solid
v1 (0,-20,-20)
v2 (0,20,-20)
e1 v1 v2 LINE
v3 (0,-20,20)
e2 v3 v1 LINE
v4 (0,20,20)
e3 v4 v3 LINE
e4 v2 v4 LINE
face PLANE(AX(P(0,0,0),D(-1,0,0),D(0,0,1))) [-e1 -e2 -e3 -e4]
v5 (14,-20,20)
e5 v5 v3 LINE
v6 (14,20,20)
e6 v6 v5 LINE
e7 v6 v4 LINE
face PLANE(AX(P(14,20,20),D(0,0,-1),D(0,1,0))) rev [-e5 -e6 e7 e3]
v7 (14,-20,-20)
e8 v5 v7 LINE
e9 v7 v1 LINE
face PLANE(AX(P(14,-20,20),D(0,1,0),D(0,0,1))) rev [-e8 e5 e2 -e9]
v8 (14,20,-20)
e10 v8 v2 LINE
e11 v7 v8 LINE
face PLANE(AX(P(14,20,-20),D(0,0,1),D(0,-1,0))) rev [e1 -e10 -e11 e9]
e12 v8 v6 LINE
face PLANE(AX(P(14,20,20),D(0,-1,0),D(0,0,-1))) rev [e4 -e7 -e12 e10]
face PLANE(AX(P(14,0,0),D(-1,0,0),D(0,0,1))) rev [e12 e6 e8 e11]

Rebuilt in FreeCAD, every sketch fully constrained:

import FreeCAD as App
import Part
import Sketcher

doc = App.newDocument("Part")
body = doc.addObject("PartDesign::Body", "Body")

sketch1 = body.newObject("Sketcher::SketchObject", "Sketch")
sketch1.AttachmentSupport = (doc.getObject("YZ_Plane"), [""])
sketch1.MapMode = "FlatFace"
sketch1.addGeometry([
    Part.LineSegment(App.Vector(-20, 20, 0), App.Vector(-20, -20, 0)),
    Part.LineSegment(App.Vector(-20, -20, 0), App.Vector(20, -20, 0)),
    Part.LineSegment(App.Vector(20, -20, 0), App.Vector(20, 20, 0)),
    Part.LineSegment(App.Vector(20, 20, 0), App.Vector(-20, 20, 0)),
], False)
sketch1.addConstraint([
    Sketcher.Constraint("Coincident", 0, 2, 1, 1),
    Sketcher.Constraint("Coincident", 1, 2, 2, 1),
    Sketcher.Constraint("Coincident", 2, 2, 3, 1),
    Sketcher.Constraint("Coincident", 3, 2, 0, 1),
    Sketcher.Constraint("Vertical", 0),
    Sketcher.Constraint("Horizontal", 1),
    Sketcher.Constraint("Vertical", 2),
    Sketcher.Constraint("Horizontal", 3),
    Sketcher.Constraint("Symmetric", 0, 2, 2, 2, -1, 1),
    Sketcher.Constraint("Equal", 3, 0),
    Sketcher.Constraint("DistanceX", 1, 1, 1, 2, 40.0),
])
pad1 = body.newObject("PartDesign::Pad", "Pad")
pad1.Profile = sketch1
pad1.Length = 14

doc.recompute()
